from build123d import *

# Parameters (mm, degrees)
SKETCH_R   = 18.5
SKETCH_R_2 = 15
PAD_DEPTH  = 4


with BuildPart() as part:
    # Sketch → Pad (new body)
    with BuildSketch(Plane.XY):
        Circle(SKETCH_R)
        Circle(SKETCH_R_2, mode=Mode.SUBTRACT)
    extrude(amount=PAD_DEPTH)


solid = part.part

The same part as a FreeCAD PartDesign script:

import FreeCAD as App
import Part
import Sketcher

doc = App.newDocument("Part")
params = doc.addObject("Spreadsheet::Sheet", "Params")
for row, (alias, value) in enumerate([
    ("sketch1_diameter", "37 mm"),
    ("sketch1_diameter2", "30 mm"),
    ("pad1_length", "4 mm"),
], start=1):
    params.set(f"A{row}", alias)
    params.set(f"B{row}", "=" + value)
    params.setAlias(f"B{row}", alias)

body = doc.addObject("PartDesign::Body", "Body")

sketch1 = doc.addObject("Sketcher::SketchObject", "Sketch")
body.addObject(sketch1)
sketch1.AttachmentSupport = (doc.XY_Plane, [""])
sketch1.MapMode = "FlatFace"
sketch1.addGeometry([
    Part.Circle(App.Vector(0, 0, 0), App.Vector(0, 0, 1), 18.5),
    Part.Circle(App.Vector(0, 0, 0), App.Vector(0, 0, 1), 15),
], False)
sketch1.addConstraint([
    Sketcher.Constraint("Coincident", 0, 3, -1, 1),
    Sketcher.Constraint("Coincident", 1, 3, -1, 1),
    Sketcher.Constraint("Diameter", 0, 37.0),
    Sketcher.Constraint("Diameter", 1, 30.0),
])
sketch1.setExpression("Constraints[2]", "Params.sketch1_diameter")
sketch1.setExpression("Constraints[3]", "Params.sketch1_diameter2")
pad1 = doc.addObject("PartDesign::Pad", "Pad")
body.addObject(pad1)
pad1.Profile = sketch1
pad1.setExpression("Length", "Params.pad1_length")

doc.recompute()
